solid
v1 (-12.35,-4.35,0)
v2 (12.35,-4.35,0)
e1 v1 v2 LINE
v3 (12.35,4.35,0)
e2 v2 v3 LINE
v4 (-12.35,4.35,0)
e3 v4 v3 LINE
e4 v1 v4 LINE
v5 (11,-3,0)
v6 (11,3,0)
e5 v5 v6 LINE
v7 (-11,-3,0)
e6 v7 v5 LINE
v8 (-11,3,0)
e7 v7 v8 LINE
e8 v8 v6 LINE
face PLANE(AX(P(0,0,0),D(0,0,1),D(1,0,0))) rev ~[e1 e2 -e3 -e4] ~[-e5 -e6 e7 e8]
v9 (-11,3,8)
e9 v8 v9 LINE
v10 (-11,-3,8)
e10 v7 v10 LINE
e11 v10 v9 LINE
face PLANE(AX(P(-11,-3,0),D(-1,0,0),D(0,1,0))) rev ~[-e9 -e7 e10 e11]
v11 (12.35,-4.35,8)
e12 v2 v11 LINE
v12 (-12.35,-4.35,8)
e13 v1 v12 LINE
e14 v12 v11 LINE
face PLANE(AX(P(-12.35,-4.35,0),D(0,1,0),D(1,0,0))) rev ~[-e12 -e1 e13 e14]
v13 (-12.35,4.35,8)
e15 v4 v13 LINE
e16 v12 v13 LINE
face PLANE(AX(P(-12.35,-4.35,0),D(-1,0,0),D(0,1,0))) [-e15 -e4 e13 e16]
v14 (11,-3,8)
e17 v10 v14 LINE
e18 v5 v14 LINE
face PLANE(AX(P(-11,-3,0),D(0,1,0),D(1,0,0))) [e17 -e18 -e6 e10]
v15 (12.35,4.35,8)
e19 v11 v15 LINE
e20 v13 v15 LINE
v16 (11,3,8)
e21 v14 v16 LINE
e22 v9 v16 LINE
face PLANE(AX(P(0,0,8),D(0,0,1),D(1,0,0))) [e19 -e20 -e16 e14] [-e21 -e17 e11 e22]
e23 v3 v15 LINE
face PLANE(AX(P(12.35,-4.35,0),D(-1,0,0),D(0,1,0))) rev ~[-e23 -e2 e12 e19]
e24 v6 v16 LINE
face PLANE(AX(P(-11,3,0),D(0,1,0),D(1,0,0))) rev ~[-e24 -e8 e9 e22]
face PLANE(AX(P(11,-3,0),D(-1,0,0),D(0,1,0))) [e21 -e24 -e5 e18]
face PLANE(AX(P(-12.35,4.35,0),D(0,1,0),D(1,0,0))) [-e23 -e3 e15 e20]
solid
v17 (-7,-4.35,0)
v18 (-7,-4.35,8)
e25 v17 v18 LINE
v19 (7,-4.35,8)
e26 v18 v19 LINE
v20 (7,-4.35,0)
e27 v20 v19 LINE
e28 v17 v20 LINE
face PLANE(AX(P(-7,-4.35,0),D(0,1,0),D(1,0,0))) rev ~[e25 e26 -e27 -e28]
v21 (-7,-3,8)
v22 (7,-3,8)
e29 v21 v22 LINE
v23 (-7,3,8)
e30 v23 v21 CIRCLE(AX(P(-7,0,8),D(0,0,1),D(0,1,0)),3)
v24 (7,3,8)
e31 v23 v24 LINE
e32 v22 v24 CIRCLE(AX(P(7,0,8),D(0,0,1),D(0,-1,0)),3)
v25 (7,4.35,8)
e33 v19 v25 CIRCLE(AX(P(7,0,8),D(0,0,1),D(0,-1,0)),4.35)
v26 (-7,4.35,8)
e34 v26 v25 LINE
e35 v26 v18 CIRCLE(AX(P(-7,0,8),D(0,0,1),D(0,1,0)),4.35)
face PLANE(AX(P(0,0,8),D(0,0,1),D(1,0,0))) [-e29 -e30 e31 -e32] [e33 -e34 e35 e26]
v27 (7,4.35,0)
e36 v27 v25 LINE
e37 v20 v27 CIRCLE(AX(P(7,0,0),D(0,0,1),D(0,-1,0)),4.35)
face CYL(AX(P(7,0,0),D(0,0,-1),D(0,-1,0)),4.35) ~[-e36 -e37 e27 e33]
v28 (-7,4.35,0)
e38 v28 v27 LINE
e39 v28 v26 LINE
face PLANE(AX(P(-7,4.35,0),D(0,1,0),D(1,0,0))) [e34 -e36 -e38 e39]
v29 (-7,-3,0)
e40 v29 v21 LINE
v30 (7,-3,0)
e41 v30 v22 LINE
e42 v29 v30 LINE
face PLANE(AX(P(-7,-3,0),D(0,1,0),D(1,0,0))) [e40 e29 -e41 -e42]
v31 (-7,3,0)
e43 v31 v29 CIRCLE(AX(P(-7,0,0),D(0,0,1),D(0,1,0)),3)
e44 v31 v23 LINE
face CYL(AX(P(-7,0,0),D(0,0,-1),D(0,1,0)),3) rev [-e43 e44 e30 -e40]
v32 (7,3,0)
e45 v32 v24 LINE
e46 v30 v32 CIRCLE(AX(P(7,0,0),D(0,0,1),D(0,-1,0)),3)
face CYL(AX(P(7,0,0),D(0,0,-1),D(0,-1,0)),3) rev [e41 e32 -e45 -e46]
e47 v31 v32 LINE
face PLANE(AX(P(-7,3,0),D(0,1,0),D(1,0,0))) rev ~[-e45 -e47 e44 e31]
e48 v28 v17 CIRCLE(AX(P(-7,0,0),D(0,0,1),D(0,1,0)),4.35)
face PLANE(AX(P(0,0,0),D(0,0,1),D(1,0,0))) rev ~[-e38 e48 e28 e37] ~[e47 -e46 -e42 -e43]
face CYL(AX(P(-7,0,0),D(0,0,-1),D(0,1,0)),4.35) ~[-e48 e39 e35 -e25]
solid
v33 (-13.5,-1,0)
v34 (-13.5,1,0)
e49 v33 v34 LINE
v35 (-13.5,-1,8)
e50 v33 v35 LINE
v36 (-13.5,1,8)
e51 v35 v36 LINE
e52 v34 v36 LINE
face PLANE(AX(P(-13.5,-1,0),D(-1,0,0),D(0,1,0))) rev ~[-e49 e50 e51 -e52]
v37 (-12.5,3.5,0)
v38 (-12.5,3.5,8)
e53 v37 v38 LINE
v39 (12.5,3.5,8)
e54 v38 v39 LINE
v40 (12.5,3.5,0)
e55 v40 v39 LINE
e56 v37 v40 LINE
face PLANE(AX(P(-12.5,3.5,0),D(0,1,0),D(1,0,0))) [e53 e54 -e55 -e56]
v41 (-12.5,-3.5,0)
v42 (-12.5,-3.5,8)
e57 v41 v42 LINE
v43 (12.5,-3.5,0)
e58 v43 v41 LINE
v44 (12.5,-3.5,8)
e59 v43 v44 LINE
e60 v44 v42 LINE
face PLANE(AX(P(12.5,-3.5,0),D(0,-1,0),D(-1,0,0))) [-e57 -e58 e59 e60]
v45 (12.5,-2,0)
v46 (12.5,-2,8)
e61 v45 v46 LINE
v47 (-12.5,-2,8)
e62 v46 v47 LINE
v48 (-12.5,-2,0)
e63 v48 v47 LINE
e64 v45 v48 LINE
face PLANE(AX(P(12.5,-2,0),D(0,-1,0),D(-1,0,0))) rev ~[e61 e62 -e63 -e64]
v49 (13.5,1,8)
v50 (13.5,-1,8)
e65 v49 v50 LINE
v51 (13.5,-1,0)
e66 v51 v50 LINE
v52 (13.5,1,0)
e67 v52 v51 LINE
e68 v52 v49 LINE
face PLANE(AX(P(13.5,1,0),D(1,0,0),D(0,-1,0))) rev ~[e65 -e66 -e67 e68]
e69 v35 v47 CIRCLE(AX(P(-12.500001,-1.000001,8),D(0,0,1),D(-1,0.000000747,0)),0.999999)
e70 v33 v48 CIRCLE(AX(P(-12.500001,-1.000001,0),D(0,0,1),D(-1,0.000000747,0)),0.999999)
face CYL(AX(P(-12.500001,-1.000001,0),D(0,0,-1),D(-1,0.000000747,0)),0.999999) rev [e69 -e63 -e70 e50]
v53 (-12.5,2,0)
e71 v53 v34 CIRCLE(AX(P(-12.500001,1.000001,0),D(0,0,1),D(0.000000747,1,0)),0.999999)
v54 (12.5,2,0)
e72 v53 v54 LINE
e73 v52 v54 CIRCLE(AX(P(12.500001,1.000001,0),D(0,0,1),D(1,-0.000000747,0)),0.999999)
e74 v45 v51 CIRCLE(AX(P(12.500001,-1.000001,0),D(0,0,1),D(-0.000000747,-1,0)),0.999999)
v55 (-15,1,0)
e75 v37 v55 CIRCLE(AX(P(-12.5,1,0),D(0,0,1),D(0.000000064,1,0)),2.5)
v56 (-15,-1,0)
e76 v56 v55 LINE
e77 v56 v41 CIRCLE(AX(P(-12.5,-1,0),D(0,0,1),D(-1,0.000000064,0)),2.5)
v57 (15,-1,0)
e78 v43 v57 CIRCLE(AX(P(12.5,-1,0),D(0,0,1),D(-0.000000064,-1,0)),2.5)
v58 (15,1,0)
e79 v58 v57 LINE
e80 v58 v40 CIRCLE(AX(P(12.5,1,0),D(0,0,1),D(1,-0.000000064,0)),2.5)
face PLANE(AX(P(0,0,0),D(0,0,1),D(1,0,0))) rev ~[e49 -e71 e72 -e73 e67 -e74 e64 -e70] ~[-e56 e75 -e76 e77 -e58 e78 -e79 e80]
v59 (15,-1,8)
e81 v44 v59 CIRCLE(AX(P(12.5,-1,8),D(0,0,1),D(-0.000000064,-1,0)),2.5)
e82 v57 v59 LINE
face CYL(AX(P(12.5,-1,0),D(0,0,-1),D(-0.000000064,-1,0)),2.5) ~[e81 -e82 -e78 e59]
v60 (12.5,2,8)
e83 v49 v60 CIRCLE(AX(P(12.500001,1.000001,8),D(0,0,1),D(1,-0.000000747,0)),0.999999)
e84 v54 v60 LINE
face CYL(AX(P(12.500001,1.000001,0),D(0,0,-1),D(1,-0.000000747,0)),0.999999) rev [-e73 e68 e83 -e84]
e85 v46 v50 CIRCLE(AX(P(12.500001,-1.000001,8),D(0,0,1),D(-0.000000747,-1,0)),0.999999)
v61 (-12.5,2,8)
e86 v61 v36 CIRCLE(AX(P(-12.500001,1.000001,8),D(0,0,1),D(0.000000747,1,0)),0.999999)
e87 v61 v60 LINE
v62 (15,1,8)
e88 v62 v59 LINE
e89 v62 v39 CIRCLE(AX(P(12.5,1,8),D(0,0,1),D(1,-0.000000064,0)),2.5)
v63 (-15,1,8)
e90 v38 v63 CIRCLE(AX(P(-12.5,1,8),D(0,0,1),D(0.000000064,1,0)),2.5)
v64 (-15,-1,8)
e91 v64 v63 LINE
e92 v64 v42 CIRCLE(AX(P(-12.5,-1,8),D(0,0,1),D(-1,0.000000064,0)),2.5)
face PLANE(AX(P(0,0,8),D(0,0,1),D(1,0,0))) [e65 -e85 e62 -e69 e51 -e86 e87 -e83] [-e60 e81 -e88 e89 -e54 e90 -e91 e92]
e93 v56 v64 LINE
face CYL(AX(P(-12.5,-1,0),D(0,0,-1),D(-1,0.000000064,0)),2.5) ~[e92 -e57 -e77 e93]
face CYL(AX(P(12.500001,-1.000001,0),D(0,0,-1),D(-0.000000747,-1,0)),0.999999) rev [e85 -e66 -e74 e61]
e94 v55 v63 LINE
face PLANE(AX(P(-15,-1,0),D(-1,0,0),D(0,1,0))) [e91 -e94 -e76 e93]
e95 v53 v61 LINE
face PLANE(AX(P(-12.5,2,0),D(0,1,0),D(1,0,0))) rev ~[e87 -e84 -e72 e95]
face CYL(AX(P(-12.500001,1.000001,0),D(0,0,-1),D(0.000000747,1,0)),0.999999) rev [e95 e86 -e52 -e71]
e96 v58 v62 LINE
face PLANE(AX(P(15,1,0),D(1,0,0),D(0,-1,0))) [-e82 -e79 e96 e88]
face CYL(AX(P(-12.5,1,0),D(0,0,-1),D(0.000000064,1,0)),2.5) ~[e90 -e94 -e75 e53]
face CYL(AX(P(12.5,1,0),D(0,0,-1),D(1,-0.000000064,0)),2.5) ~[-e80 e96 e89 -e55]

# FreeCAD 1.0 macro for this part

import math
import FreeCAD as App
import Part
import Sketcher
Q = App.Units.Quantity

doc = App.newDocument("Part")
body = doc.addObject("PartDesign::Body", "Body")

sketch1 = body.newObject("Sketcher::SketchObject", "Sketch")
sketch1.AttachmentSupport = (doc.getObject("XY_Plane"), [""])
sketch1.MapMode = "FlatFace"
sketch1.addGeometry([
    Part.LineSegment(App.Vector(-12.35, 4.35, 0), App.Vector(-12.35, -4.35, 0)),
    Part.LineSegment(App.Vector(-12.35, -4.35, 0), App.Vector(12.35, -4.35, 0)),
    Part.LineSegment(App.Vector(12.35, -4.35, 0), App.Vector(12.35, 4.35, 0)),
    Part.LineSegment(App.Vector(12.35, 4.35, 0), App.Vector(-12.35, 4.35, 0)),
    Part.LineSegment(App.Vector(11, -3, 0), App.Vector(-11, -3, 0)),
    Part.LineSegment(App.Vector(-11, -3, 0), App.Vector(-11, 3, 0)),
    Part.LineSegment(App.Vector(-11, 3, 0), App.Vector(11, 3, 0)),
    Part.LineSegment(App.Vector(11, 3, 0), App.Vector(11, -3, 0)),
], False)
sketch1.addConstraint([
    Sketcher.Constraint("Coincident", 0, 2, 1, 1),
    Sketcher.Constraint("Coincident", 1, 2, 2, 1),
    Sketcher.Constraint("Coincident", 2, 2, 3, 1),
    Sketcher.Constraint("Coincident", 3, 2, 0, 1),
    Sketcher.Constraint("Coincident", 4, 2, 5, 1),
    Sketcher.Constraint("Coincident", 5, 2, 6, 1),
    Sketcher.Constraint("Coincident", 6, 2, 7, 1),
    Sketcher.Constraint("Coincident", 7, 2, 4, 1),
    Sketcher.Constraint("Vertical", 0),
    Sketcher.Constraint("Horizontal", 1),
    Sketcher.Constraint("Vertical", 2),
    Sketcher.Constraint("Horizontal", 3),
    Sketcher.Constraint("Horizontal", 4),
    Sketcher.Constraint("Vertical", 5),
    Sketcher.Constraint("Horizontal", 6),
    Sketcher.Constraint("Vertical", 7),
    Sketcher.Constraint("Symmetric", 0, 2, 2, 2, -1, 1),
    Sketcher.Constraint("Symmetric", 4, 2, 6, 2, -1, 1),
    Sketcher.Constraint("DistanceX", 4, 2, 4, 1, Q("22 mm")),
    Sketcher.Constraint("DistanceY", 5, 1, 5, 2, Q("6 mm")),
    Sketcher.Constraint("DistanceX", 1, 1, 1, 2, Q("24.7 mm")),
    Sketcher.Constraint("DistanceY", 0, 2, 0, 1, Q("8.7 mm")),
])
pad1 = body.newObject("PartDesign::Pad", "Pad")
pad1.Profile = sketch1
pad1.Length = 8
body2 = doc.addObject("PartDesign::Body", "Body001")

sketch2 = body2.newObject("Sketcher::SketchObject", "Sketch001")
sketch2.AttachmentSupport = (doc.getObject("XY_Plane001"), [""])
sketch2.MapMode = "FlatFace"
sketch2.addGeometry([
    Part.ArcOfCircle(Part.Circle(App.Vector(-7, 0, 0), App.Vector(0, 0, 1), 4.35), math.radians(90), math.radians(270)),
    Part.LineSegment(App.Vector(-7, -4.35, 0), App.Vector(7, -4.35, 0)),
    Part.ArcOfCircle(Part.Circle(App.Vector(7, 0, 0), App.Vector(0, 0, 1), 4.35), math.radians(-90), math.radians(90)),
    Part.LineSegment(App.Vector(7, 4.35, 0), App.Vector(-7, 4.35, 0)),
    Part.ArcOfCircle(Part.Circle(App.Vector(-7, 0, 0), App.Vector(0, 0, 1), 3), math.radians(90), math.radians(270)),
    Part.LineSegment(App.Vector(-7, 3, 0), App.Vector(7, 3, 0)),
    Part.ArcOfCircle(Part.Circle(App.Vector(7, 0, 0), App.Vector(0, 0, 1), 3), math.radians(-90), math.radians(90)),
    Part.LineSegment(App.Vector(7, -3, 0), App.Vector(-7, -3, 0)),
], False)
sketch2.addConstraint([
    Sketcher.Constraint("Tangent", 0, 2, 1, 1),
    Sketcher.Constraint("Tangent", 1, 2, 2, 1),
    Sketcher.Constraint("Tangent", 2, 2, 3, 1),
    Sketcher.Constraint("Tangent", 3, 2, 0, 1),
    Sketcher.Constraint("Tangent", 4, 1, 5, 1),
    Sketcher.Constraint("Tangent", 5, 2, 6, 2),
    Sketcher.Constraint("Tangent", 6, 1, 7, 1),
    Sketcher.Constraint("Tangent", 7, 2, 4, 2),
    Sketcher.Constraint("Horizontal", 1),
    Sketcher.Constraint("Horizontal", 3),
    Sketcher.Constraint("Horizontal", 5),
    Sketcher.Constraint("Horizontal", 7),
    Sketcher.Constraint("Coincident", 4, 3, 0, 3),
    Sketcher.Constraint("Symmetric", 0, 3, 2, 3, -1, 1),
    Sketcher.Constraint("Vertical", 6, 3, 1, 2),
    Sketcher.Constraint("Radius", 4, Q("3 mm")),
    Sketcher.Constraint("DistanceX", 1, 1, 1, 2, Q("14 mm")),
    Sketcher.Constraint("Radius", 0, Q("4.35 mm")),
])
pad2 = body2.newObject("PartDesign::Pad", "Pad001")
pad2.Profile = sketch2
pad2.Length = 8
body3 = doc.addObject("PartDesign::Body", "Body002")

sketch3 = body3.newObject("Sketcher::SketchObject", "Sketch002")
sketch3.AttachmentSupport = (doc.getObject("XY_Plane002"), [""])
sketch3.MapMode = "FlatFace"
sketch3.addGeometry([
    Part.ArcOfCircle(Part.Circle(App.Vector(-12.5, 1, 0), App.Vector(0, 0, 1), 2.5), math.radians(89.999996), math.radians(180.000004)),
    Part.LineSegment(App.Vector(-15, 1, 0), App.Vector(-15, -1, 0)),
    Part.ArcOfCircle(Part.Circle(App.Vector(-12.5, -1, 0), App.Vector(0, 0, 1), 2.5), math.radians(179.999996), math.radians(270.000004)),
    Part.LineSegment(App.Vector(-12.5, -3.5, 0), App.Vector(12.5, -3.5, 0)),
    Part.ArcOfCircle(Part.Circle(App.Vector(12.5, -1, 0), App.Vector(0, 0, 1), 2.5), math.radians(-90.000004), math.radians(0.000004)),
    Part.LineSegment(App.Vector(15, -1, 0), App.Vector(15, 1, 0)),
    Part.ArcOfCircle(Part.Circle(App.Vector(12.5, 1, 0), App.Vector(0, 0, 1), 2.5), math.radians(-0.000004), math.radians(90.000004)),
    Part.LineSegment(App.Vector(12.5, 3.5, 0), App.Vector(-12.5, 3.5, 0)),
    Part.ArcOfCircle(Part.Circle(App.Vector(-12.500001, 1.000001, 0), App.Vector(0, 0, 1), 0.999999), math.radians(89.999957), math.radians(180.000043)),
    Part.LineSegment(App.Vector(-12.5, 2, 0), App.Vector(12.5, 2, 0)),
    Part.ArcOfCircle(Part.Circle(App.Vector(12.500001, 1.000001, 0), App.Vector(0, 0, 1), 0.999999), math.radians(-0.000043), math.radians(90.000043)),
    Part.LineSegment(App.Vector(13.5, 1, 0), App.Vector(13.5, -1, 0)),
    Part.ArcOfCircle(Part.Circle(App.Vector(12.500001, -1.000001, 0), App.Vector(0, 0, 1), 0.999999), math.radians(-90.000043), math.radians(0.000043)),
    Part.LineSegment(App.Vector(12.5, -2, 0), App.Vector(-12.5, -2, 0)),
    Part.ArcOfCircle(Part.Circle(App.Vector(-12.500001, -1.000001, 0), App.Vector(0, 0, 1), 0.999999), math.radians(179.999957), math.radians(270.000043)),
    Part.LineSegment(App.Vector(-13.5, -1, 0), App.Vector(-13.5, 1, 0)),
], False)
sketch3.addConstraint([
    Sketcher.Constraint("Tangent", 0, 2, 1, 1),
    Sketcher.Constraint("Tangent", 1, 2, 2, 1),
    Sketcher.Constraint("Tangent", 2, 2, 3, 1),
    Sketcher.Constraint("Tangent", 3, 2, 4, 1),
    Sketcher.Constraint("Tangent", 4, 2, 5, 1),
    Sketcher.Constraint("Tangent", 5, 2, 6, 1),
    Sketcher.Constraint("Tangent", 6, 2, 7, 1),
    Sketcher.Constraint("Tangent", 7, 2, 0, 1),
    Sketcher.Constraint("Tangent", 8, 1, 9, 1),
    Sketcher.Constraint("Tangent", 9, 2, 10, 2),
    Sketcher.Constraint("Tangent", 10, 1, 11, 1),
    Sketcher.Constraint("Tangent", 11, 2, 12, 2),
    Sketcher.Constraint("Tangent", 12, 1, 13, 1),
    Sketcher.Constraint("Tangent", 13, 2, 14, 2),
    Sketcher.Constraint("Tangent", 14, 1, 15, 1),
    Sketcher.Constraint("Tangent", 15, 2, 8, 2),
    Sketcher.Constraint("Vertical", 1),
    Sketcher.Constraint("Horizontal", 3),
    Sketcher.Constraint("Vertical", 5),
    Sketcher.Constraint("Horizontal", 7),
    Sketcher.Constraint("Horizontal", 9),
    Sketcher.Constraint("Vertical", 11),
    Sketcher.Constraint("Horizontal", 13),
    Sketcher.Constraint("Vertical", 15),
    Sketcher.Constraint("Coincident", 8, 3, 0, 3),
    Sketcher.Constraint("Coincident", 10, 3, 6, 3),
    Sketcher.Constraint("Coincident", 12, 3, 4, 3),
    Sketcher.Constraint("Equal", 0, 2),
    Sketcher.Constraint("Equal", 2, 4),
    Sketcher.Constraint("Equal", 4, 6),
    Sketcher.Constraint("Equal", 12, 14),
    Sketcher.Constraint("Symmetric", 0, 3, 4, 3, -1, 1),
    Sketcher.Constraint("Radius", 8, Q("0.999999 mm")),
    Sketcher.Constraint("Radius", 0, Q("2.5 mm")),
    Sketcher.Constraint("DistanceX", 3, 1, 3, 2, Q("25 mm")),
    Sketcher.Constraint("DistanceY", 1, 2, 1, 1, Q("2 mm")),
])
pad3 = body3.newObject("PartDesign::Pad", "Pad002")
pad3.Profile = sketch3
pad3.Length = 8

doc.recompute()
